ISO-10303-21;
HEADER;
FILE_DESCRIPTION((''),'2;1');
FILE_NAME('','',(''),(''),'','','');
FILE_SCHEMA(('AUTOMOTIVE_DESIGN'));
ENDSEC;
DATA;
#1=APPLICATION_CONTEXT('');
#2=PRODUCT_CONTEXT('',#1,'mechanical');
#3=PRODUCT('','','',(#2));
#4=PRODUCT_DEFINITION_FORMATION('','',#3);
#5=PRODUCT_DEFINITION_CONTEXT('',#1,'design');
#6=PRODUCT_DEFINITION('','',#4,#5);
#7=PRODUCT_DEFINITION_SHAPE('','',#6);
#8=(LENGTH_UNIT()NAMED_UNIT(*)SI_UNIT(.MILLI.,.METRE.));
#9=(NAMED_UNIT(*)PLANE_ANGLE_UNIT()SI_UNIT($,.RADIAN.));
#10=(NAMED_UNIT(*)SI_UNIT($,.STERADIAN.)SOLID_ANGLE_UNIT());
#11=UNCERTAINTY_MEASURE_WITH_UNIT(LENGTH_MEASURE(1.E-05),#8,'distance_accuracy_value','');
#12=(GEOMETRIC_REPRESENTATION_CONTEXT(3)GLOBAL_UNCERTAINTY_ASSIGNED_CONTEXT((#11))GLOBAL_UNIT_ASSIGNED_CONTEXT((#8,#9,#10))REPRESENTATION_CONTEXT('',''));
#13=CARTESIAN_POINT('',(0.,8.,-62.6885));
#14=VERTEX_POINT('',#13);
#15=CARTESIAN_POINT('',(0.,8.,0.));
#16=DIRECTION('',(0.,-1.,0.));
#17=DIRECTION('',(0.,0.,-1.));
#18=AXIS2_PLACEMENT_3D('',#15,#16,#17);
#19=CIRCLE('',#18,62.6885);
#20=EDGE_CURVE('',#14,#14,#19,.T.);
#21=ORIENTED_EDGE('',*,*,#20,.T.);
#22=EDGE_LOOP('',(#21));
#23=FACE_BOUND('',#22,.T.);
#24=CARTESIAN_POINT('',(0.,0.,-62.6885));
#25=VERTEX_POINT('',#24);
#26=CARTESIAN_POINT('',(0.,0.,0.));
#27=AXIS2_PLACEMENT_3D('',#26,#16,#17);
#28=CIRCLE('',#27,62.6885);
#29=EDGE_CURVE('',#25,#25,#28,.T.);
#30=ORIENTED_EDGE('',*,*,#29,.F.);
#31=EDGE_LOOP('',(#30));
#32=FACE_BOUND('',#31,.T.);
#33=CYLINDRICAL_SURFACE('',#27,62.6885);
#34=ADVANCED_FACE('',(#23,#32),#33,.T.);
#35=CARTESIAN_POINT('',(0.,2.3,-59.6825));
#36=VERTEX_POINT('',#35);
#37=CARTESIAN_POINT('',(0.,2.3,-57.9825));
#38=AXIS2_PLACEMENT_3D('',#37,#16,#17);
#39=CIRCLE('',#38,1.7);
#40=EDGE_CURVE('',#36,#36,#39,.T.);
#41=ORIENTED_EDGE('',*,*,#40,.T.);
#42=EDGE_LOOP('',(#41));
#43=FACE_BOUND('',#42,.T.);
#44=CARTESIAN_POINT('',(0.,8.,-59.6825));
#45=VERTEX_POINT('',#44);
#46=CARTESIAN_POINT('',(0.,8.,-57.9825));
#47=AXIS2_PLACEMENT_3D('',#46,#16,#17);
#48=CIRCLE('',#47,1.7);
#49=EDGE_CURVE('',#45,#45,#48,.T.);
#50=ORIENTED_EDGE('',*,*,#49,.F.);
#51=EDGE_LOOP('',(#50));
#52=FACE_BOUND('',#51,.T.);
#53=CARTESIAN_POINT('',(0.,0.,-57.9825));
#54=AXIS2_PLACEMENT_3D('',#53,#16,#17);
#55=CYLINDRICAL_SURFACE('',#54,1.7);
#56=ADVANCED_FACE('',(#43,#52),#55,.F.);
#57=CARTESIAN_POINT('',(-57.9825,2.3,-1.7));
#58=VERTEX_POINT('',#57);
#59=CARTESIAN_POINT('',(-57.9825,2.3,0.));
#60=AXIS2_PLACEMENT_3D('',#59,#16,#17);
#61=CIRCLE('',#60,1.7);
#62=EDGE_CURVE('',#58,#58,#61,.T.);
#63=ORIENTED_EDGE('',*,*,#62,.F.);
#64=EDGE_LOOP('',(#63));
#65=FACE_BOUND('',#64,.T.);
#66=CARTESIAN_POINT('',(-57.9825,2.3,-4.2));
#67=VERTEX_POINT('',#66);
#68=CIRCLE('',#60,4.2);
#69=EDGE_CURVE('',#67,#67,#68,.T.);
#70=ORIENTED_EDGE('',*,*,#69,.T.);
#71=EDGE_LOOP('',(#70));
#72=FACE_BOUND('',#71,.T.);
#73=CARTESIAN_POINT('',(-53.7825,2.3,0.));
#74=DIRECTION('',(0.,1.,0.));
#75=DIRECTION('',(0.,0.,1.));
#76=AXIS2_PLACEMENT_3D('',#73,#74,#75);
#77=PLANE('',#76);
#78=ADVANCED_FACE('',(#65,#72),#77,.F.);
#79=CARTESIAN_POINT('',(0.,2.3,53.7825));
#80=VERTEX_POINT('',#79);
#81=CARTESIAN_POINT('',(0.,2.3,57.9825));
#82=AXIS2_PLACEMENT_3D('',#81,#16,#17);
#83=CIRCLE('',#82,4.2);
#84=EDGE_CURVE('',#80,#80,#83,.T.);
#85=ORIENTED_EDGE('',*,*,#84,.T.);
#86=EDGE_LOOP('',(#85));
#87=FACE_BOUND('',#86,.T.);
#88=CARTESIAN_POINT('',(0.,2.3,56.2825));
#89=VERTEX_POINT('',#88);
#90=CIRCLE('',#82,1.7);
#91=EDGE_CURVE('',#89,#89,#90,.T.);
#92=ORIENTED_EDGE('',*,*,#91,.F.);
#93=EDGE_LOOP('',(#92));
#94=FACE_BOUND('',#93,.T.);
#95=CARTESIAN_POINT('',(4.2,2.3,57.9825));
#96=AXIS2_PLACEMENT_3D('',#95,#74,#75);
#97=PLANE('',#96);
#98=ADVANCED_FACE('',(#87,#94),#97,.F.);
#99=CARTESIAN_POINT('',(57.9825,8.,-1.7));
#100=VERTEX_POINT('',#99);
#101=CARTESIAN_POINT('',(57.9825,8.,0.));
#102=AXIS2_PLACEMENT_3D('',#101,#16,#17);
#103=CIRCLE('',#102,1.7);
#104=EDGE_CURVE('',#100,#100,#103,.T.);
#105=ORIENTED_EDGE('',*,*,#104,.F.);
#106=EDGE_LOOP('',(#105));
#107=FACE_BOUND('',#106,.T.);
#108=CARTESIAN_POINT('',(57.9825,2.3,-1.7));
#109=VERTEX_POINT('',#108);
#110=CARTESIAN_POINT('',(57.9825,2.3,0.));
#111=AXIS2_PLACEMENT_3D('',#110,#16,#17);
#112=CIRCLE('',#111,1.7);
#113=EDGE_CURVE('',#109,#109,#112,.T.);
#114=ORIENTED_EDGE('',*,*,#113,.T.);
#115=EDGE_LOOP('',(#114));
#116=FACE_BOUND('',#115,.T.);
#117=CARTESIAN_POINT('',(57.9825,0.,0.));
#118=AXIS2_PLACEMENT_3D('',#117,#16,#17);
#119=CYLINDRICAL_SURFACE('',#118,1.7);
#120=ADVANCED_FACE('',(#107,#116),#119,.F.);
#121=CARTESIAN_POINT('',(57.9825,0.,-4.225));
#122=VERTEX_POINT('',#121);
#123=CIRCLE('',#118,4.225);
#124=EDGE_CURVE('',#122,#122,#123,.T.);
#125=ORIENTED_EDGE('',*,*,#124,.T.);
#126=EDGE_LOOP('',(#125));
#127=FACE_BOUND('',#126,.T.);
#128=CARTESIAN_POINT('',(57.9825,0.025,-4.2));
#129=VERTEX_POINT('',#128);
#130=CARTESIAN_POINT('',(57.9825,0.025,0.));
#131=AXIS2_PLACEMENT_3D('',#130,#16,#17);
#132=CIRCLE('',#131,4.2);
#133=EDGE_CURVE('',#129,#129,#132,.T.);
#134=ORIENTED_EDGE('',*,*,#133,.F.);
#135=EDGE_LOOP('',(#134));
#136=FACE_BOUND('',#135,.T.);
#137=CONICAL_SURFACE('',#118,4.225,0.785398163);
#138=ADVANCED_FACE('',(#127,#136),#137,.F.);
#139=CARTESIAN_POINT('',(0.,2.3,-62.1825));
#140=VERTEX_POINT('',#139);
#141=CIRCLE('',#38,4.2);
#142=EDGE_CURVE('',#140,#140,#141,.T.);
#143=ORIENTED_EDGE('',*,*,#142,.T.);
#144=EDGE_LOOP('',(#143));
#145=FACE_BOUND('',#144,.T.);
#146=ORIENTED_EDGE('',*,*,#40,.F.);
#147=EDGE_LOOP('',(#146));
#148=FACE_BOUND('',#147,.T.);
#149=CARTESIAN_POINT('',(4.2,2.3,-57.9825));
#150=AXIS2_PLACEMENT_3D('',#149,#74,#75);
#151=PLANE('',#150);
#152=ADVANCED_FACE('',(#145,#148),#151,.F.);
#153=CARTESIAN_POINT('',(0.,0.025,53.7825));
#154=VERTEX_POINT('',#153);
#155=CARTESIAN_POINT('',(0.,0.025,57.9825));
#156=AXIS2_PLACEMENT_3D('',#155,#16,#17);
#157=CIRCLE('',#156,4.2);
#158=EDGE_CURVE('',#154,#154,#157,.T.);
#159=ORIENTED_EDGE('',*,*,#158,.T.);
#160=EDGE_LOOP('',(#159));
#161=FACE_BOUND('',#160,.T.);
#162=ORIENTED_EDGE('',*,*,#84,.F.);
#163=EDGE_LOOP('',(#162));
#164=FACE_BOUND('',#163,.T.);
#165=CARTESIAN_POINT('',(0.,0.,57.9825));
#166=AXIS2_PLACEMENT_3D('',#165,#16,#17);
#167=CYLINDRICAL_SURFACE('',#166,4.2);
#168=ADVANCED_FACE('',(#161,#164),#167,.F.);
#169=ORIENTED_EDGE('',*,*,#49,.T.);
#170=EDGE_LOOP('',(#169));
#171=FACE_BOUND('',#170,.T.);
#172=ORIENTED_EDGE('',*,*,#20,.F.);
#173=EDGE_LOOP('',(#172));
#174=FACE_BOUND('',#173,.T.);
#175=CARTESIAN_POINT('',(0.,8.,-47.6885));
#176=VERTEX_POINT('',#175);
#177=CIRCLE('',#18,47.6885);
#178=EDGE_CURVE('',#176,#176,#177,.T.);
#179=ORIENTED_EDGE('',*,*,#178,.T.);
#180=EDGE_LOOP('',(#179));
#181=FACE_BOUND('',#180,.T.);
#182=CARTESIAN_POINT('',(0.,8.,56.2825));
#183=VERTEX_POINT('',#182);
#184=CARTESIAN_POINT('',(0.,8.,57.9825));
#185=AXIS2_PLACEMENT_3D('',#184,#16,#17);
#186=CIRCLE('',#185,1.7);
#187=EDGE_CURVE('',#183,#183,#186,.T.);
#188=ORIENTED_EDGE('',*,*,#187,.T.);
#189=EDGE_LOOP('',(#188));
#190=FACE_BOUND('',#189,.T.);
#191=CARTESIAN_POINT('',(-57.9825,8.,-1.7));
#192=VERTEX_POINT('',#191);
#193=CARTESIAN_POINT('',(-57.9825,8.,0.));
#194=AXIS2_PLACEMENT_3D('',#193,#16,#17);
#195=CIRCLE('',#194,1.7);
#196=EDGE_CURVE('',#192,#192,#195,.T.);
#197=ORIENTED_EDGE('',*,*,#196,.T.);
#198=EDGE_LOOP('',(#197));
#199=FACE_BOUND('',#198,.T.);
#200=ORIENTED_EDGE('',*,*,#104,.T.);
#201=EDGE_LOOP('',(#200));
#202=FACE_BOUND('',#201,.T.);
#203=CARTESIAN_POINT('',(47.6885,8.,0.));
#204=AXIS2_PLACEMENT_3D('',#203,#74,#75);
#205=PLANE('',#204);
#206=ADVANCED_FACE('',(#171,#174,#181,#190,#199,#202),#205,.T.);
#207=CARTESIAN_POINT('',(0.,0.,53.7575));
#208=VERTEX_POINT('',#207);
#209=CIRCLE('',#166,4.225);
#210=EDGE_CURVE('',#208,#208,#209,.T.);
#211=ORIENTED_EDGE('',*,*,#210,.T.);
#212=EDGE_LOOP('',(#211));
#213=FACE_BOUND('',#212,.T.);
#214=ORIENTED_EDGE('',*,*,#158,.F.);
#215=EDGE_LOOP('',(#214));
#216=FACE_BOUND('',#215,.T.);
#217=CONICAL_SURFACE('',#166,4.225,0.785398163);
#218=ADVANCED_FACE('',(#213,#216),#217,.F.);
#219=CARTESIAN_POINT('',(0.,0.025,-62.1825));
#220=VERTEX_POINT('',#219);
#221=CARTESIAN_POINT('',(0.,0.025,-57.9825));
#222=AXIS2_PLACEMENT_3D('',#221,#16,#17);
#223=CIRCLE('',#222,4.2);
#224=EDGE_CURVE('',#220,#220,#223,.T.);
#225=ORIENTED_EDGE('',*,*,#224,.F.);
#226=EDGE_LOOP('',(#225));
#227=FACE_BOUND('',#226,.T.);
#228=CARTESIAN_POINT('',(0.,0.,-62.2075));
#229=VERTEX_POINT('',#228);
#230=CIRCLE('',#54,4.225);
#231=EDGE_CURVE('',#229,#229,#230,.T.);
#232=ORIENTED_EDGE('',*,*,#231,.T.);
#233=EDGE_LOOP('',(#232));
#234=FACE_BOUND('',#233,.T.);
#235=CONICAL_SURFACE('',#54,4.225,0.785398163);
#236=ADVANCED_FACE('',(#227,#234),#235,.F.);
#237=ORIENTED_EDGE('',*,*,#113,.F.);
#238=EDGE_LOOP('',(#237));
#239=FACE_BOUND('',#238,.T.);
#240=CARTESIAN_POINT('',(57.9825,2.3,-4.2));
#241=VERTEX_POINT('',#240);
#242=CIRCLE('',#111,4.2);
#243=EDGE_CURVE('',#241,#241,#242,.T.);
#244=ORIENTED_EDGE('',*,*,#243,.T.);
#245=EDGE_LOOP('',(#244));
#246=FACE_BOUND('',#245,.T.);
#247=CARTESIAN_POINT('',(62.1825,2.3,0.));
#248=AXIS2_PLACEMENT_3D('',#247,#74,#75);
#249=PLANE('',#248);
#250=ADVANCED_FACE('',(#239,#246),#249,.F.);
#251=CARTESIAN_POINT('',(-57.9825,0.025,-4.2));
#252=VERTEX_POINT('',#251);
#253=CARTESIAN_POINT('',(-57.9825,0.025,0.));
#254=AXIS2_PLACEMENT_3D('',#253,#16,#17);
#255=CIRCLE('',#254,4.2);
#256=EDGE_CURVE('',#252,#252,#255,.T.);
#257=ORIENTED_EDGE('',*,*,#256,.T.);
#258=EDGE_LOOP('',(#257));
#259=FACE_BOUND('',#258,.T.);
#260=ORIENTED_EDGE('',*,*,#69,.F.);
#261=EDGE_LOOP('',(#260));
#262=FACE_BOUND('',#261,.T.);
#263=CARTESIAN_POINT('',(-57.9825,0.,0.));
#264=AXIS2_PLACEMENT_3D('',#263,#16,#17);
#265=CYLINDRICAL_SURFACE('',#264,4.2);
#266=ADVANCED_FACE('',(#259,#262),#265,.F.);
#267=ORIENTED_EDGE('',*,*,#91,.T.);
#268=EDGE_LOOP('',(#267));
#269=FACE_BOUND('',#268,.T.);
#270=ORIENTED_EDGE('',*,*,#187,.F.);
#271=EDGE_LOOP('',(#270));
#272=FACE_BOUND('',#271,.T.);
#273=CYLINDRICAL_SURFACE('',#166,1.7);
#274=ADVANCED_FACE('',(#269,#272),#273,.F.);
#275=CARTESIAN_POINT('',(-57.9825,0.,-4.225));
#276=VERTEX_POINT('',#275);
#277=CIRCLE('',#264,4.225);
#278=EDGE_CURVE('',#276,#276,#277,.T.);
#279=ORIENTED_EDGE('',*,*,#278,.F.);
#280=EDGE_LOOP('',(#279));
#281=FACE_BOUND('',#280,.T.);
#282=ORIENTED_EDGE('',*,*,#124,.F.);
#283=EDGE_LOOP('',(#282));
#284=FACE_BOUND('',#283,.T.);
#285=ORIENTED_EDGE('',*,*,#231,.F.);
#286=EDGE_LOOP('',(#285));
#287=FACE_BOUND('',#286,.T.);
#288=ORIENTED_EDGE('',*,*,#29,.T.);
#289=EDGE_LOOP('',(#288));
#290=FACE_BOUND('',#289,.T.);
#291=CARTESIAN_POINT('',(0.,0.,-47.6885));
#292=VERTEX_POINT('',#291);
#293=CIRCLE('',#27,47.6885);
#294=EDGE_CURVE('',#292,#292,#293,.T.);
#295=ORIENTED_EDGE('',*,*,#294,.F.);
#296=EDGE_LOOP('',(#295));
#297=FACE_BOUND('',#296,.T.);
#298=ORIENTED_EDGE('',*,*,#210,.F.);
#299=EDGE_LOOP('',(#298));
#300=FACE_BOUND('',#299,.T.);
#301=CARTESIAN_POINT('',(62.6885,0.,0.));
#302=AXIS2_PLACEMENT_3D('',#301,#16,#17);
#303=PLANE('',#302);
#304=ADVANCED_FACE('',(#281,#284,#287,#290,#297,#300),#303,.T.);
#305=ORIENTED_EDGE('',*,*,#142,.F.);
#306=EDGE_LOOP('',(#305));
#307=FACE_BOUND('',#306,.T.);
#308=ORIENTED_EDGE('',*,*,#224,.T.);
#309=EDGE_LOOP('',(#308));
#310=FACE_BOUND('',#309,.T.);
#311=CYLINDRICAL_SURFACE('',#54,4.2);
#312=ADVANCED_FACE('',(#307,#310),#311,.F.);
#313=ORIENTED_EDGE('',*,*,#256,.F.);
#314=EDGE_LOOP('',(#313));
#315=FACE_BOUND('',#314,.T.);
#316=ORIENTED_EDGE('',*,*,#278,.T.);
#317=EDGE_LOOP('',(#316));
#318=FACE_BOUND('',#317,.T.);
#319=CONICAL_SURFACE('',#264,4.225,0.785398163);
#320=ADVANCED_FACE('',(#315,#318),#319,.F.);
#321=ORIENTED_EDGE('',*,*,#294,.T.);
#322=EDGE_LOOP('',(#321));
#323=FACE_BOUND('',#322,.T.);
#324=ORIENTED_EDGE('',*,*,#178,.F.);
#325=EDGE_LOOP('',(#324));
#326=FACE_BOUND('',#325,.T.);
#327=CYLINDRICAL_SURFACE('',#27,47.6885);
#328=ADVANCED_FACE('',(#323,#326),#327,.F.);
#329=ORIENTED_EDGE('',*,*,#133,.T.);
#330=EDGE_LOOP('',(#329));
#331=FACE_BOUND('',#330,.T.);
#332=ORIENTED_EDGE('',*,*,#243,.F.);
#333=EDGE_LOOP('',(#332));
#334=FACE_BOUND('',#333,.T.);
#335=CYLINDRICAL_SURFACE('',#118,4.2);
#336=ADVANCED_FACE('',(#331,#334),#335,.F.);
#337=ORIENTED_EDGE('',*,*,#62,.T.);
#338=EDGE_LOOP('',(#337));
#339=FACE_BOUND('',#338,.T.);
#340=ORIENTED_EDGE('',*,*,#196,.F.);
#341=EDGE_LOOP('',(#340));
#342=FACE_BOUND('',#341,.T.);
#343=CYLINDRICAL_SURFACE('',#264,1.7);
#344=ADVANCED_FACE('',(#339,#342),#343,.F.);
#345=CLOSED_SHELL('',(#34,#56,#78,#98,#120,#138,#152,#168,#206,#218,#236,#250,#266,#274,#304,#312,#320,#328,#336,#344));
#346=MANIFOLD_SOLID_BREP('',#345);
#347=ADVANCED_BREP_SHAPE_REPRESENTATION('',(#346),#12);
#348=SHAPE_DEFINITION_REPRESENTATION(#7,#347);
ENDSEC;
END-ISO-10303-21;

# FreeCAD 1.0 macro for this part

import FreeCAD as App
import Part
import Sketcher
from FreeCAD import Vector
Q = App.Units.Quantity


def add_polygon(sketch, points):
    """Adds a closed chain of lines whose ends are joined by coincident constraints."""
    first, n = sketch.GeometryCount, len(points)
    for a, b in zip(points, points[1:] + points[:1]):
        sketch.addGeometry(Part.LineSegment(App.Vector(*a, 0), App.Vector(*b, 0)), False)
    for i in range(n):
        sketch.addConstraint(Sketcher.Constraint("Coincident", first + i, 2, first + (i + 1) % n, 1))

doc = App.newDocument("Part")
params = doc.addObject("Spreadsheet::Sheet", "Params")
for row, (alias, value) in enumerate([
    ("sketch1_width", "15 mm"),
    ("sketch1_height", "8 mm"),
    ("revolution_angle", "360 deg"),
    ("sketch2_width", "8 mm"),
    ("sketch2_width2", "5.7 mm"),
    ("sketch2_height", "2.5 mm"),
    ("sketch2_height2", "1.7 mm"),
    ("groove_angle", "360 deg"),
    ("linearpattern_pitch", "81.999638 mm"),
    ("linearpattern2_pitch", "81.999638 mm"),
    ("linearpattern3_pitch", "115.965 mm"),
], start=1):
    params.set(f"A{row}", alias)
    params.set(f"B{row}", "=" + value)
    params.setAlias(f"B{row}", alias)

body = doc.addObject("PartDesign::Body", "Body")

# Sketch on XY plane
sketch1 = body.newObject("Sketcher::SketchObject", "Sketch")
sketch1.AttachmentSupport = (doc.getObject("XY_Plane"), [""])
sketch1.MapMode = "FlatFace"
add_polygon(sketch1, [(48, 8), (48, 0), (63, 0), (63, 8)])  # lines 0-3
sketch1.addConstraint([
    Sketcher.Constraint("Vertical", 0),
    Sketcher.Constraint("Horizontal", 1),
    Sketcher.Constraint("Vertical", 2),
    Sketcher.Constraint("Horizontal", 3),
    Sketcher.Constraint("PointOnObject", 0, 2, -1),
    Sketcher.Constraint("DistanceX", 1, 1, 1, 2, 15.0),
    Sketcher.Constraint("DistanceY", 0, 2, 0, 1, 8.0),
    Sketcher.Constraint("DistanceX", -1, 1, 0, 2, 47.6885),
])
sketch1.setExpression("Constraints[9]", "Params.sketch1_width")
sketch1.setExpression("Constraints[10]", "Params.sketch1_height")
revolution = body.newObject("PartDesign::Revolution", "Revolution")
revolution.Profile = sketch1
revolution.ReferenceAxis = (sketch1, ["V_Axis"])
revolution.setExpression("Angle", "Params.revolution_angle")

# Sketch on YZ plane
sketch2 = body.newObject("Sketcher::SketchObject", "Sketch001")
sketch2.AttachmentSupport = (doc.getObject("YZ_Plane"), [""])
sketch2.MapMode = "FlatFace"
add_polygon(sketch2, [(8, -57.983), (0, -57.983), (0, -62.208), (0.025, -62.182), (2.3, -62.182), (2.3, -59.682), (8, -59.682)])  # lines 0-6
sketch2.addGeometry(Part.LineSegment(Vector(0, -57.983, 0), Vector(8, -57.983, 0)), True)  # axis
sketch2.addConstraint([
    Sketcher.Constraint("Horizontal", 0),
    Sketcher.Constraint("Vertical", 1),
    Sketcher.Constraint("Horizontal", 3),
    Sketcher.Constraint("Vertical", 4),
    Sketcher.Constraint("Horizontal", 5),
    Sketcher.Constraint("Vertical", 6),
    Sketcher.Constraint("Horizontal", 7),
    Sketcher.Constraint("Coincident", 7, 1, 0, 2),
    Sketcher.Constraint("PointOnObject", 0, 2, -2),
    Sketcher.Constraint("Vertical", 5, 2, 7, 2),
    Sketcher.Constraint("DistanceX", 0, 2, 0, 1, 8.0),
    Sketcher.Constraint("Angle", 2, Q("45 deg")),
    Sketcher.Constraint("DistanceX", 5, 1, 5, 2, 5.7),
    Sketcher.Constraint("DistanceY", 4, 1, 4, 2, 2.5),
    Sketcher.Constraint("DistanceY", 6, 1, 6, 2, 1.7),
    Sketcher.Constraint("DistanceX", 3, 1, 3, 2, 2.275),
    Sketcher.Constraint("DistanceY", 0, 2, -1, 1, 57.9825),
])
sketch2.setExpression("Constraints[17]", "Params.sketch2_width")
sketch2.setExpression("Constraints[19]", "Params.sketch2_width2")
sketch2.setExpression("Constraints[20]", "Params.sketch2_height")
sketch2.setExpression("Constraints[21]", "Params.sketch2_height2")
groove = body.newObject("PartDesign::Groove", "Groove")
groove.Profile = sketch2
groove.ReferenceAxis = (sketch2, ["Axis0"])
groove.setExpression("Angle", "Params.groove_angle")
doc.recompute()

datumline = body.newObject("PartDesign::Line", "DatumLine")
datumline.Placement = App.Placement(Vector(0, 0, 0), App.Rotation(Vector(0, 0, 1), Vector(0.707106781, 0, 0.707106781)))
linearpattern = body.newObject("PartDesign::LinearPattern", "LinearPattern")
linearpattern.Originals = [groove]
linearpattern.Direction = (datumline, [""])
linearpattern.Mode = "offset"
linearpattern.setExpression("Offset", "Params.linearpattern_pitch")
linearpattern.Occurrences = 2
body.Tip = linearpattern
doc.recompute()

datumline2 = body.newObject("PartDesign::Line", "DatumLine001")
datumline2.Placement = App.Placement(Vector(0, 0, 0), App.Rotation(Vector(0, 0, 1), Vector(-0.707106781, 0, 0.707106781)))
linearpattern2 = body.newObject("PartDesign::LinearPattern", "LinearPattern001")
linearpattern2.Originals = [groove]
linearpattern2.Direction = (datumline2, [""])
linearpattern2.Mode = "offset"
linearpattern2.setExpression("Offset", "Params.linearpattern2_pitch")
linearpattern2.Occurrences = 2
body.Tip = linearpattern2
doc.recompute()

linearpattern3 = body.newObject("PartDesign::LinearPattern", "LinearPattern002")
linearpattern3.Originals = [groove]
linearpattern3.Direction = (doc.getObject("Z_Axis"), [""])
linearpattern3.Mode = "offset"
linearpattern3.setExpression("Offset", "Params.linearpattern3_pitch")
linearpattern3.Occurrences = 2
body.Tip = linearpattern3

doc.recompute()
